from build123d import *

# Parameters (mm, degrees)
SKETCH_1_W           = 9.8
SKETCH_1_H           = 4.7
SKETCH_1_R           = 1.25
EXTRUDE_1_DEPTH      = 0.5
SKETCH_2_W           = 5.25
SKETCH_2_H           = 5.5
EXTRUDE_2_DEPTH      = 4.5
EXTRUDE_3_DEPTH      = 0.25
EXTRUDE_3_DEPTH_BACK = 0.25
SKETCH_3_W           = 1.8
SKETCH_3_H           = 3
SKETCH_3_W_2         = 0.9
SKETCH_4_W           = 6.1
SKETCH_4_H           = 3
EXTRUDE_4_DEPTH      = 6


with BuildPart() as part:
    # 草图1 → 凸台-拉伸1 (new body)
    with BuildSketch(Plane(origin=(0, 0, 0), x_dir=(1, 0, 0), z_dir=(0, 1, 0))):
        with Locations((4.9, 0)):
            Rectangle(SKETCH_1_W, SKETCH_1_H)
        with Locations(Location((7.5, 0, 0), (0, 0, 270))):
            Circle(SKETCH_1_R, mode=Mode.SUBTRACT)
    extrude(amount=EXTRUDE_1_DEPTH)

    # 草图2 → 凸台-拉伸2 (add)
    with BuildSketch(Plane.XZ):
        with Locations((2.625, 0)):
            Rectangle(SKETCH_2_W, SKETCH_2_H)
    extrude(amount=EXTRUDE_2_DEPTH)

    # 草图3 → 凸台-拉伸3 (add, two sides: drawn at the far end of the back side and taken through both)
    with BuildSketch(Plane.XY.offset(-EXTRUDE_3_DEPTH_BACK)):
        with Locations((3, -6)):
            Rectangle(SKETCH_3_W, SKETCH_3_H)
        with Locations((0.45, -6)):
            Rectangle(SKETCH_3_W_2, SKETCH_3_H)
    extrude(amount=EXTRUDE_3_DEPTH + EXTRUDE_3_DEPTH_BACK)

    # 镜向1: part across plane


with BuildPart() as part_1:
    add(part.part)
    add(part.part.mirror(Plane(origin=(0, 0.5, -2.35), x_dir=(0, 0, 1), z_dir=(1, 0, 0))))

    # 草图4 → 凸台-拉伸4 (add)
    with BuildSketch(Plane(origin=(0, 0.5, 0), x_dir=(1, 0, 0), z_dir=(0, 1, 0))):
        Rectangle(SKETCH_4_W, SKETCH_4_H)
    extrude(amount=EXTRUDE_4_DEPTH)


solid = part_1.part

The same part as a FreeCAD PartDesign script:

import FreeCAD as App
import Part
import Sketcher
from FreeCAD import Vector
Q = App.Units.Quantity

doc = App.newDocument("Part")
body = doc.addObject("PartDesign::Body", "Body")

sketch1 = doc.addObject("Sketcher::SketchObject", "Sketch")
body.addObject(sketch1)
sketch1.AttachmentSupport = (doc.XZ_Plane, [""])
sketch1.MapMode = "FlatFace"
sketch1.addGeometry([
    Part.LineSegment(Vector(0, -2.4, 0), Vector(0, 2.4, 0)),
    Part.LineSegment(Vector(0, 2.4, 0), Vector(9.8, 2.4, 0)),
    Part.LineSegment(Vector(9.8, 2.4, 0), Vector(9.8, -2.4, 0)),
    Part.LineSegment(Vector(9.8, -2.4, 0), Vector(0, -2.4, 0)),
    Part.Circle(Vector(7.5, 0, 0), Vector(0, 0, 1), 1.2),
], False)
sketch1.addConstraint([
    Sketcher.Constraint("Coincident", 0, 2, 1, 1),
    Sketcher.Constraint("Coincident", 1, 2, 2, 1),
    Sketcher.Constraint("Coincident", 2, 2, 3, 1),
    Sketcher.Constraint("Coincident", 3, 2, 0, 1),
    Sketcher.Constraint("Vertical", 0),
    Sketcher.Constraint("Horizontal", 1),
    Sketcher.Constraint("Vertical", 2),
    Sketcher.Constraint("Horizontal", 3),
    Sketcher.Constraint("Symmetric", 0, 2, 3, 2, -1, 1),
    Sketcher.Constraint("PointOnObject", 4, 3, -1),
    Sketcher.Constraint("Diameter", 4, Q("2.5 mm")),
    Sketcher.Constraint("DistanceX", 1, 1, 1, 2, Q("9.8 mm")),
    Sketcher.Constraint("DistanceY", 0, 1, 0, 2, Q("4.7 mm")),
    Sketcher.Constraint("DistanceX", -1, 1, 4, 3, Q("7.5 mm")),
])
pad1 = doc.addObject("PartDesign::Pad", "Pad")
body.addObject(pad1)
pad1.Profile = sketch1
pad1.Length = 0.5
pad1.Reversed = True

sketch2 = doc.addObject("Sketcher::SketchObject", "Sketch001")
body.addObject(sketch2)
sketch2.AttachmentSupport = (doc.XZ_Plane, [""])
sketch2.MapMode = "FlatFace"
sketch2.addGeometry([
    Part.LineSegment(Vector(0, 3, 0), Vector(0, -3, 0)),
    Part.LineSegment(Vector(0, -3, 0), Vector(5, -3, 0)),
    Part.LineSegment(Vector(5, -3, 0), Vector(5, 3, 0)),
    Part.LineSegment(Vector(5, 3, 0), Vector(0, 3, 0)),
], False)
sketch2.addConstraint([
    Sketcher.Constraint("Coincident", 0, 2, 1, 1),
    Sketcher.Constraint("Coincident", 1, 2, 2, 1),
    Sketcher.Constraint("Coincident", 2, 2, 3, 1),
    Sketcher.Constraint("Coincident", 3, 2, 0, 1),
    Sketcher.Constraint("Vertical", 0),
    Sketcher.Constraint("Horizontal", 1),
    Sketcher.Constraint("Vertical", 2),
    Sketcher.Constraint("Horizontal", 3),
    Sketcher.Constraint("Symmetric", 0, 2, 3, 2, -1, 1),
    Sketcher.Constraint("DistanceY", 0, 2, 0, 1, Q("5.5 mm")),
    Sketcher.Constraint("DistanceX", 1, 1, 1, 2, Q("5.25 mm")),
])
pad2 = doc.addObject("PartDesign::Pad", "Pad001")
body.addObject(pad2)
pad2.Profile = sketch2
pad2.Length = 4.5

sketch3 = doc.addObject("Sketcher::SketchObject", "Sketch002")
body.addObject(sketch3)
sketch3.AttachmentSupport = (doc.XY_Plane, [""])
sketch3.MapMode = "FlatFace"
sketch3.addGeometry([
    Part.LineSegment(Vector(2.1, -4.5, 0), Vector(2.1, -7.5, 0)),
    Part.LineSegment(Vector(2.1, -7.5, 0), Vector(3.9, -7.5, 0)),
    Part.LineSegment(Vector(3.9, -7.5, 0), Vector(3.9, -4.5, 0)),
    Part.LineSegment(Vector(3.9, -4.5, 0), Vector(2.1, -4.5, 0)),
    Part.LineSegment(Vector(0, -4.5, 0), Vector(0, -7.5, 0)),
    Part.LineSegment(Vector(0, -7.5, 0), Vector(0.9, -7.5, 0)),
    Part.LineSegment(Vector(0.9, -7.5, 0), Vector(0.9, -4.5, 0)),
    Part.LineSegment(Vector(0.9, -4.5, 0), Vector(0, -4.5, 0)),
], False)
sketch3.addConstraint([
    Sketcher.Constraint("Coincident", 0, 2, 1, 1),
    Sketcher.Constraint("Coincident", 1, 2, 2, 1),
    Sketcher.Constraint("Coincident", 2, 2, 3, 1),
    Sketcher.Constraint("Coincident", 3, 2, 0, 1),
    Sketcher.Constraint("Coincident", 4, 2, 5, 1),
    Sketcher.Constraint("Coincident", 5, 2, 6, 1),
    Sketcher.Constraint("Coincident", 6, 2, 7, 1),
    Sketcher.Constraint("Coincident", 7, 2, 4, 1),
    Sketcher.Constraint("Vertical", 0),
    Sketcher.Constraint("Horizontal", 1),
    Sketcher.Constraint("Vertical", 2),
    Sketcher.Constraint("Horizontal", 3),
    Sketcher.Constraint("Vertical", 4),
    Sketcher.Constraint("Horizontal", 5),
    Sketcher.Constraint("Vertical", 6),
    Sketcher.Constraint("Horizontal", 7),
    Sketcher.Constraint("PointOnObject", 4, 2, -2),
    Sketcher.Constraint("Horizontal", 1, 2, 4, 2),
    Sketcher.Constraint("Horizontal", 3, 2, 6, 2),
    Sketcher.Constraint("DistanceY", 0, 2, 0, 1, Q("3 mm")),
    Sketcher.Constraint("DistanceX", 1, 1, 1, 2, Q("1.8 mm")),
    Sketcher.Constraint("DistanceX", 5, 1, 5, 2, Q("0.9 mm")),
    Sketcher.Constraint("DistanceX", 5, 2, 1, 2, Q("3 mm")),
    Sketcher.Constraint("DistanceY", 0, 2, -1, 1, Q("7.5 mm")),
])
pad3 = doc.addObject("PartDesign::Pad", "Pad002")
body.addObject(pad3)
pad3.Profile = sketch3
pad3.Type = "TwoLengths"
pad3.Length = 0.25
pad3.Length2 = 0.25
body2 = doc.addObject("PartDesign::Body", "Body001")
doc.recompute()

body2.BaseFeature = body
doc.recompute()

mirroring = doc.addObject("Part::Mirroring", "Mirroring")
mirroring.Source = body
mirroring.Base = Vector(0, 0.5, -2.35)
mirroring.Normal = Vector(1, 0, 0)
body3 = doc.addObject("PartDesign::Body", "Body002")
body3.BaseFeature = mirroring
boolean = doc.addObject("PartDesign::Boolean", "Boolean")
body2.addObject(boolean)
boolean.Type = "Fuse"
boolean.addObjects([body3])
doc.recompute()

sketch4 = doc.addObject("Sketcher::SketchObject", "Sketch003")
body2.addObject(sketch4)
sketch4.AttachmentSupport = (doc.getObject("XZ_Plane001"), [""])
sketch4.MapMode = "FlatFace"
sketch4.AttachmentOffset = App.Placement(Vector(0, 0, -0.5), App.Rotation())
sketch4.addGeometry([
    Part.LineSegment(Vector(-3, -1.5, 0), Vector(-3, 1.5, 0)),
    Part.LineSegment(Vector(-3, 1.5, 0), Vector(3, 1.5, 0)),
    Part.LineSegment(Vector(3, 1.5, 0), Vector(3, -1.5, 0)),
    Part.LineSegment(Vector(3, -1.5, 0), Vector(-3, -1.5, 0)),
], False)
sketch4.addConstraint([
    Sketcher.Constraint("Coincident", 0, 2, 1, 1),
    Sketcher.Constraint("Coincident", 1, 2, 2, 1),
    Sketcher.Constraint("Coincident", 2, 2, 3, 1),
    Sketcher.Constraint("Coincident", 3, 2, 0, 1),
    Sketcher.Constraint("Vertical", 0),
    Sketcher.Constraint("Horizontal", 1),
    Sketcher.Constraint("Vertical", 2),
    Sketcher.Constraint("Horizontal", 3),
    Sketcher.Constraint("Symmetric", 0, 2, 2, 2, -1, 1),
    Sketcher.Constraint("DistanceY", 0, 1, 0, 2, Q("3 mm")),
    Sketcher.Constraint("DistanceX", 1, 1, 1, 2, Q("6.1 mm")),
])
pad4 = doc.addObject("PartDesign::Pad", "Pad003")
body2.addObject(pad4)
pad4.Profile = sketch4
pad4.Length = 6
pad4.Reversed = True
mirroring.Visibility = False

doc.recompute()
